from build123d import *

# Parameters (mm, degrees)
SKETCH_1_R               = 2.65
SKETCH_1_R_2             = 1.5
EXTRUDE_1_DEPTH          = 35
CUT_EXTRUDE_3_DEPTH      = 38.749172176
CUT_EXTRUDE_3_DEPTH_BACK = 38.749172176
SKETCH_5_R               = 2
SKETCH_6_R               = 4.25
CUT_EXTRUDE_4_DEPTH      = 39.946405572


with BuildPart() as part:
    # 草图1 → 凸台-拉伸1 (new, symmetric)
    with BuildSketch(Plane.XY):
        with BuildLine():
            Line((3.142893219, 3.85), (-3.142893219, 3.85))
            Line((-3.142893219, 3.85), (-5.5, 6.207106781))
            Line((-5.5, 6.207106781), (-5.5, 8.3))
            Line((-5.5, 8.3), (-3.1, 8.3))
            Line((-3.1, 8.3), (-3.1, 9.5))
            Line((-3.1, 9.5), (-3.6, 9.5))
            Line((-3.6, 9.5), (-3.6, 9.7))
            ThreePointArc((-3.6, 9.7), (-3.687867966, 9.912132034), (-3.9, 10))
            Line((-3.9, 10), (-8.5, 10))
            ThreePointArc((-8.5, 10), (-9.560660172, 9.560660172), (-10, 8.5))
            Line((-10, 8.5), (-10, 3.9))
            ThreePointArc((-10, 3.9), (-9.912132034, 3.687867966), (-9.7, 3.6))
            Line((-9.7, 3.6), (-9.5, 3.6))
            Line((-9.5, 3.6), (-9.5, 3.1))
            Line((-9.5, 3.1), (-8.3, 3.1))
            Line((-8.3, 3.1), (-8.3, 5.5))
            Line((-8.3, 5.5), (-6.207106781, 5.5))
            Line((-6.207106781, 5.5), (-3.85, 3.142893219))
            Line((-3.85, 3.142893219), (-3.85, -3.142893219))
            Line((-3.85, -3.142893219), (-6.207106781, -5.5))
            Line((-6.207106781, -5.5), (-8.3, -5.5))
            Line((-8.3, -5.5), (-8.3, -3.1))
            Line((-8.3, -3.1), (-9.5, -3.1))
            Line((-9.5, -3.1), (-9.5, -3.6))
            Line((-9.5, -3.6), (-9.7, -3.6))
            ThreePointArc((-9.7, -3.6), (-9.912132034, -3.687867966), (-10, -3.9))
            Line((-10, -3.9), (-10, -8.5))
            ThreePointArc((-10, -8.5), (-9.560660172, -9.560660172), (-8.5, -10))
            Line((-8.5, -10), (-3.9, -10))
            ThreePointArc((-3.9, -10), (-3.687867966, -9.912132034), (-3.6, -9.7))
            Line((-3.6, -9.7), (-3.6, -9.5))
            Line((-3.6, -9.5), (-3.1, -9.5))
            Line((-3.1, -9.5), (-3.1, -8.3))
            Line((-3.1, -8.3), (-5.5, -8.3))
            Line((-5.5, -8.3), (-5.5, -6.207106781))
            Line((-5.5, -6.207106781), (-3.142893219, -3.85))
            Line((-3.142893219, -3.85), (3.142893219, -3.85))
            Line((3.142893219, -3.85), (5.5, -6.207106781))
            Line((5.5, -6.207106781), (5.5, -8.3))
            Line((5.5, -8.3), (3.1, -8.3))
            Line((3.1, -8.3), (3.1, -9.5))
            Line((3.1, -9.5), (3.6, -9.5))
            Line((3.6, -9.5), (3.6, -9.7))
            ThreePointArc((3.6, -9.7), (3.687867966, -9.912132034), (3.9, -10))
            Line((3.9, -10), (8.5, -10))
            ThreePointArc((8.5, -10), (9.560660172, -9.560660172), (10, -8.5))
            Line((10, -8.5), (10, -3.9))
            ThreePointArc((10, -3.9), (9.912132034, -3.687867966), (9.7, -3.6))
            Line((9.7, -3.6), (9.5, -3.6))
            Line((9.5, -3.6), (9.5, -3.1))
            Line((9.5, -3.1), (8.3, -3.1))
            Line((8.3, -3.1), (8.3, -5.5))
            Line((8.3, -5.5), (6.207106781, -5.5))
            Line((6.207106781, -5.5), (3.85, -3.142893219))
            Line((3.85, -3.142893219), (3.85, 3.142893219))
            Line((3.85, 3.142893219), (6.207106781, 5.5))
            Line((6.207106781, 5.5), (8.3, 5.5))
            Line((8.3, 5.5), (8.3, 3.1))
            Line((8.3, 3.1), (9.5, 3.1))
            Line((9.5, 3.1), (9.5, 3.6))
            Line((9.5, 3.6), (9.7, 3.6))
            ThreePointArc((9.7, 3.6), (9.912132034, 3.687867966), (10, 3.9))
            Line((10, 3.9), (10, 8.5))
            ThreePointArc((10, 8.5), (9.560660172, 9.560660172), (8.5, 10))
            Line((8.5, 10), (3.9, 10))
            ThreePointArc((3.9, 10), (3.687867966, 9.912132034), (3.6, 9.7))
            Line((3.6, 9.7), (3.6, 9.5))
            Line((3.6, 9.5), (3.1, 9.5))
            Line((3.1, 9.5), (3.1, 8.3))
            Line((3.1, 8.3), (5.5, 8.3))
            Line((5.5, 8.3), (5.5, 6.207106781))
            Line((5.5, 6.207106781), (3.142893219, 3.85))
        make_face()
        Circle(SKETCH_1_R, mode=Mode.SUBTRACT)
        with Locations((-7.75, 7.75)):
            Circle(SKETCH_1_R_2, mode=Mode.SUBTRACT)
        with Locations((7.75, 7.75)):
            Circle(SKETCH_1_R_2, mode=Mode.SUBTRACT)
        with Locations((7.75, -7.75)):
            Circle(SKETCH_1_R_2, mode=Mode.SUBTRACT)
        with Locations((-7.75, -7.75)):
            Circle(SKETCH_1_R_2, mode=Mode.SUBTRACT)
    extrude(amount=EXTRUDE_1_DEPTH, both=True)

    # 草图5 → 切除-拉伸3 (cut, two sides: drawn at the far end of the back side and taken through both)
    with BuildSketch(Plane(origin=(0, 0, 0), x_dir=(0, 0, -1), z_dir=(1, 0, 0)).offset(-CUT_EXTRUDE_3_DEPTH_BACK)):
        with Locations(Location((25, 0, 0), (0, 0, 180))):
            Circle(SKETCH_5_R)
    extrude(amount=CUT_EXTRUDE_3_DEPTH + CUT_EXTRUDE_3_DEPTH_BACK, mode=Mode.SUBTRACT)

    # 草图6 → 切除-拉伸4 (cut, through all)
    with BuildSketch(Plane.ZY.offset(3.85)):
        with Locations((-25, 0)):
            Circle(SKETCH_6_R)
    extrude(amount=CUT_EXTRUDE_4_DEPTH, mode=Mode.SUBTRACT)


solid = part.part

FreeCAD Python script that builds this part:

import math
import FreeCAD as App
import Part
import Sketcher

doc = App.newDocument("Part")
body = doc.addObject("PartDesign::Body", "Body")

sketch1 = body.newObject("Sketcher::SketchObject", "Sketch")
sketch1.AttachmentSupport = (doc.getObject("XY_Plane"), [""])
sketch1.MapMode = "FlatFace"
sketch1.addGeometry([
    Part.LineSegment(App.Vector(3.142893, 3.85, 0), App.Vector(-3.142893, 3.85, 0)),
    Part.LineSegment(App.Vector(-3.142893, 3.85, 0), App.Vector(-5.5, 6.207107, 0)),
    Part.LineSegment(App.Vector(-5.5, 6.207107, 0), App.Vector(-5.5, 8.3, 0)),
    Part.LineSegment(App.Vector(-5.5, 8.3, 0), App.Vector(-3.1, 8.3, 0)),
    Part.LineSegment(App.Vector(-3.1, 8.3, 0), App.Vector(-3.1, 9.5, 0)),
    Part.LineSegment(App.Vector(-3.1, 9.5, 0), App.Vector(-3.6, 9.5, 0)),
    Part.LineSegment(App.Vector(-3.6, 9.5, 0), App.Vector(-3.6, 9.7, 0)),
    Part.ArcOfCircle(Part.Circle(App.Vector(-3.9, 9.7, 0), App.Vector(0, 0, 1), 0.3), math.radians(0), math.radians(90)),
    Part.LineSegment(App.Vector(-3.9, 10, 0), App.Vector(-8.5, 10, 0)),
    Part.ArcOfCircle(Part.Circle(App.Vector(-8.5, 8.5, 0), App.Vector(0, 0, 1), 1.5), math.radians(90), math.radians(180)),
    Part.LineSegment(App.Vector(-10, 8.5, 0), App.Vector(-10, 3.9, 0)),
    Part.ArcOfCircle(Part.Circle(App.Vector(-9.7, 3.9, 0), App.Vector(0, 0, 1), 0.3), math.radians(-180), math.radians(-90)),
    Part.LineSegment(App.Vector(-9.7, 3.6, 0), App.Vector(-9.5, 3.6, 0)),
    Part.LineSegment(App.Vector(-9.5, 3.6, 0), App.Vector(-9.5, 3.1, 0)),
    Part.LineSegment(App.Vector(-9.5, 3.1, 0), App.Vector(-8.3, 3.1, 0)),
    Part.LineSegment(App.Vector(-8.3, 3.1, 0), App.Vector(-8.3, 5.5, 0)),
    Part.LineSegment(App.Vector(-8.3, 5.5, 0), App.Vector(-6.207107, 5.5, 0)),
    Part.LineSegment(App.Vector(-6.207107, 5.5, 0), App.Vector(-3.85, 3.142893, 0)),
    Part.LineSegment(App.Vector(-3.85, 3.142893, 0), App.Vector(-3.85, -3.142893, 0)),
    Part.LineSegment(App.Vector(-3.85, -3.142893, 0), App.Vector(-6.207107, -5.5, 0)),
    Part.LineSegment(App.Vector(-6.207107, -5.5, 0), App.Vector(-8.3, -5.5, 0)),
    Part.LineSegment(App.Vector(-8.3, -5.5, 0), App.Vector(-8.3, -3.1, 0)),
    Part.LineSegment(App.Vector(-8.3, -3.1, 0), App.Vector(-9.5, -3.1, 0)),
    Part.LineSegment(App.Vector(-9.5, -3.1, 0), App.Vector(-9.5, -3.6, 0)),
    Part.LineSegment(App.Vector(-9.5, -3.6, 0), App.Vector(-9.7, -3.6, 0)),
    Part.ArcOfCircle(Part.Circle(App.Vector(-9.7, -3.9, 0), App.Vector(0, 0, 1), 0.3), math.radians(90), math.radians(180)),
    Part.LineSegment(App.Vector(-10, -3.9, 0), App.Vector(-10, -8.5, 0)),
    Part.ArcOfCircle(Part.Circle(App.Vector(-8.5, -8.5, 0), App.Vector(0, 0, 1), 1.5), math.radians(180), math.radians(270)),
    Part.LineSegment(App.Vector(-8.5, -10, 0), App.Vector(-3.9, -10, 0)),
    Part.ArcOfCircle(Part.Circle(App.Vector(-3.9, -9.7, 0), App.Vector(0, 0, 1), 0.3), math.radians(-90), math.radians(0)),
    Part.LineSegment(App.Vector(-3.6, -9.7, 0), App.Vector(-3.6, -9.5, 0)),
    Part.LineSegment(App.Vector(-3.6, -9.5, 0), App.Vector(-3.1, -9.5, 0)),
    Part.LineSegment(App.Vector(-3.1, -9.5, 0), App.Vector(-3.1, -8.3, 0)),
    Part.LineSegment(App.Vector(-3.1, -8.3, 0), App.Vector(-5.5, -8.3, 0)),
    Part.LineSegment(App.Vector(-5.5, -8.3, 0), App.Vector(-5.5, -6.207107, 0)),
    Part.LineSegment(App.Vector(-5.5, -6.207107, 0), App.Vector(-3.142893, -3.85, 0)),
    Part.LineSegment(App.Vector(-3.142893, -3.85, 0), App.Vector(3.142893, -3.85, 0)),
    Part.LineSegment(App.Vector(3.142893, -3.85, 0), App.Vector(5.5, -6.207107, 0)),
    Part.LineSegment(App.Vector(5.5, -6.207107, 0), App.Vector(5.5, -8.3, 0)),
    Part.LineSegment(App.Vector(5.5, -8.3, 0), App.Vector(3.1, -8.3, 0)),
    Part.LineSegment(App.Vector(3.1, -8.3, 0), App.Vector(3.1, -9.5, 0)),
    Part.LineSegment(App.Vector(3.1, -9.5, 0), App.Vector(3.6, -9.5, 0)),
    Part.LineSegment(App.Vector(3.6, -9.5, 0), App.Vector(3.6, -9.7, 0)),
    Part.ArcOfCircle(Part.Circle(App.Vector(3.9, -9.7, 0), App.Vector(0, 0, 1), 0.3), math.radians(-180), math.radians(-90)),
    Part.LineSegment(App.Vector(3.9, -10, 0), App.Vector(8.5, -10, 0)),
    Part.ArcOfCircle(Part.Circle(App.Vector(8.5, -8.5, 0), App.Vector(0, 0, 1), 1.5), math.radians(-90), math.radians(0)),
    Part.LineSegment(App.Vector(10, -8.5, 0), App.Vector(10, -3.9, 0)),
    Part.ArcOfCircle(Part.Circle(App.Vector(9.7, -3.9, 0), App.Vector(0, 0, 1), 0.3), math.radians(0), math.radians(90)),
    Part.LineSegment(App.Vector(9.7, -3.6, 0), App.Vector(9.5, -3.6, 0)),
    Part.LineSegment(App.Vector(9.5, -3.6, 0), App.Vector(9.5, -3.1, 0)),
    Part.LineSegment(App.Vector(9.5, -3.1, 0), App.Vector(8.3, -3.1, 0)),
    Part.LineSegment(App.Vector(8.3, -3.1, 0), App.Vector(8.3, -5.5, 0)),
    Part.LineSegment(App.Vector(8.3, -5.5, 0), App.Vector(6.207107, -5.5, 0)),
    Part.LineSegment(App.Vector(6.207107, -5.5, 0), App.Vector(3.85, -3.142893, 0)),
    Part.LineSegment(App.Vector(3.85, -3.142893, 0), App.Vector(3.85, 3.142893, 0)),
    Part.LineSegment(App.Vector(3.85, 3.142893, 0), App.Vector(6.207107, 5.5, 0)),
    Part.LineSegment(App.Vector(6.207107, 5.5, 0), App.Vector(8.3, 5.5, 0)),
    Part.LineSegment(App.Vector(8.3, 5.5, 0), App.Vector(8.3, 3.1, 0)),
    Part.LineSegment(App.Vector(8.3, 3.1, 0), App.Vector(9.5, 3.1, 0)),
    Part.LineSegment(App.Vector(9.5, 3.1, 0), App.Vector(9.5, 3.6, 0)),
    Part.LineSegment(App.Vector(9.5, 3.6, 0), App.Vector(9.7, 3.6, 0)),
    Part.ArcOfCircle(Part.Circle(App.Vector(9.7, 3.9, 0), App.Vector(0, 0, 1), 0.3), math.radians(-90), math.radians(0)),
    Part.LineSegment(App.Vector(10, 3.9, 0), App.Vector(10, 8.5, 0)),
    Part.ArcOfCircle(Part.Circle(App.Vector(8.5, 8.5, 0), App.Vector(0, 0, 1), 1.5), math.radians(0), math.radians(90)),
    Part.LineSegment(App.Vector(8.5, 10, 0), App.Vector(3.9, 10, 0)),
    Part.ArcOfCircle(Part.Circle(App.Vector(3.9, 9.7, 0), App.Vector(0, 0, 1), 0.3), math.radians(90), math.radians(180)),
    Part.LineSegment(App.Vector(3.6, 9.7, 0), App.Vector(3.6, 9.5, 0)),
    Part.LineSegment(App.Vector(3.6, 9.5, 0), App.Vector(3.1, 9.5, 0)),
    Part.LineSegment(App.Vector(3.1, 9.5, 0), App.Vector(3.1, 8.3, 0)),
    Part.LineSegment(App.Vector(3.1, 8.3, 0), App.Vector(5.5, 8.3, 0)),
    Part.LineSegment(App.Vector(5.5, 8.3, 0), App.Vector(5.5, 6.207107, 0)),
    Part.LineSegment(App.Vector(5.5, 6.207107, 0), App.Vector(3.142893, 3.85, 0)),
    Part.Circle(App.Vector(-7.75, -7.75, 0), App.Vector(0, 0, 1), 1.5),
    Part.Circle(App.Vector(7.75, -7.75, 0), App.Vector(0, 0, 1), 1.5),
    Part.Circle(App.Vector(-7.75, 7.75, 0), App.Vector(0, 0, 1), 1.5),
    Part.Circle(App.Vector(0, 0, 0), App.Vector(0, 0, 1), 2.65),
    Part.Circle(App.Vector(7.75, 7.75, 0), App.Vector(0, 0, 1), 1.5),
], False)
sketch1.addConstraint([
    Sketcher.Constraint("Coincident", 0, 2, 1, 1),
    Sketcher.Constraint("Coincident", 1, 2, 2, 1),
    Sketcher.Constraint("Coincident", 2, 2, 3, 1),
    Sketcher.Constraint("Coincident", 3, 2, 4, 1),
    Sketcher.Constraint("Coincident", 4, 2, 5, 1),
    Sketcher.Constraint("Coincident", 5, 2, 6, 1),
    Sketcher.Constraint("Tangent", 6, 2, 7, 1),
    Sketcher.Constraint("Tangent", 7, 2, 8, 1),
    Sketcher.Constraint("Tangent", 8, 2, 9, 1),
    Sketcher.Constraint("Tangent", 9, 2, 10, 1),
    Sketcher.Constraint("Tangent", 10, 2, 11, 1),
    Sketcher.Constraint("Tangent", 11, 2, 12, 1),
    Sketcher.Constraint("Coincident", 12, 2, 13, 1),
    Sketcher.Constraint("Coincident", 13, 2, 14, 1),
    Sketcher.Constraint("Coincident", 14, 2, 15, 1),
    Sketcher.Constraint("Coincident", 15, 2, 16, 1),
    Sketcher.Constraint("Coincident", 16, 2, 17, 1),
    Sketcher.Constraint("Coincident", 17, 2, 18, 1),
    Sketcher.Constraint("Coincident", 18, 2, 19, 1),
    Sketcher.Constraint("Coincident", 19, 2, 20, 1),
    Sketcher.Constraint("Coincident", 20, 2, 21, 1),
    Sketcher.Constraint("Coincident", 21, 2, 22, 1),
    Sketcher.Constraint("Coincident", 22, 2, 23, 1),
    Sketcher.Constraint("Coincident", 23, 2, 24, 1),
    Sketcher.Constraint("Tangent", 24, 2, 25, 1),
    Sketcher.Constraint("Tangent", 25, 2, 26, 1),
    Sketcher.Constraint("Tangent", 26, 2, 27, 1),
    Sketcher.Constraint("Tangent", 27, 2, 28, 1),
    Sketcher.Constraint("Tangent", 28, 2, 29, 1),
    Sketcher.Constraint("Tangent", 29, 2, 30, 1),
    Sketcher.Constraint("Coincident", 30, 2, 31, 1),
    Sketcher.Constraint("Coincident", 31, 2, 32, 1),
    Sketcher.Constraint("Coincident", 32, 2, 33, 1),
    Sketcher.Constraint("Coincident", 33, 2, 34, 1),
    Sketcher.Constraint("Coincident", 34, 2, 35, 1),
    Sketcher.Constraint("Coincident", 35, 2, 36, 1),
    Sketcher.Constraint("Coincident", 36, 2, 37, 1),
    Sketcher.Constraint("Coincident", 37, 2, 38, 1),
    Sketcher.Constraint("Coincident", 38, 2, 39, 1),
    Sketcher.Constraint("Coincident", 39, 2, 40, 1),
    Sketcher.Constraint("Coincident", 40, 2, 41, 1),
    Sketcher.Constraint("Coincident", 41, 2, 42, 1),
    Sketcher.Constraint("Tangent", 42, 2, 43, 1),
    Sketcher.Constraint("Tangent", 43, 2, 44, 1),
    Sketcher.Constraint("Tangent", 44, 2, 45, 1),
    Sketcher.Constraint("Tangent", 45, 2, 46, 1),
    Sketcher.Constraint("Tangent", 46, 2, 47, 1),
    Sketcher.Constraint("Tangent", 47, 2, 48, 1),
    Sketcher.Constraint("Coincident", 48, 2, 49, 1),
    Sketcher.Constraint("Coincident", 49, 2, 50, 1),
    Sketcher.Constraint("Coincident", 50, 2, 51, 1),
    Sketcher.Constraint("Coincident", 51, 2, 52, 1),
    Sketcher.Constraint("Coincident", 52, 2, 53, 1),
    Sketcher.Constraint("Coincident", 53, 2, 54, 1),
    Sketcher.Constraint("Coincident", 54, 2, 55, 1),
    Sketcher.Constraint("Coincident", 55, 2, 56, 1),
    Sketcher.Constraint("Coincident", 56, 2, 57, 1),
    Sketcher.Constraint("Coincident", 57, 2, 58, 1),
    Sketcher.Constraint("Coincident", 58, 2, 59, 1),
    Sketcher.Constraint("Coincident", 59, 2, 60, 1),
    Sketcher.Constraint("Tangent", 60, 2, 61, 1),
    Sketcher.Constraint("Tangent", 61, 2, 62, 1),
    Sketcher.Constraint("Tangent", 62, 2, 63, 1),
    Sketcher.Constraint("Tangent", 63, 2, 64, 1),
    Sketcher.Constraint("Tangent", 64, 2, 65, 1),
    Sketcher.Constraint("Tangent", 65, 2, 66, 1),
    Sketcher.Constraint("Coincident", 66, 2, 67, 1),
    Sketcher.Constraint("Coincident", 67, 2, 68, 1),
    Sketcher.Constraint("Coincident", 68, 2, 69, 1),
    Sketcher.Constraint("Coincident", 69, 2, 70, 1),
    Sketcher.Constraint("Coincident", 70, 2, 71, 1),
    Sketcher.Constraint("Coincident", 71, 2, 0, 1),
    Sketcher.Constraint("Horizontal", 0),
    Sketcher.Constraint("Vertical", 2),
    Sketcher.Constraint("Horizontal", 3),
    Sketcher.Constraint("Vertical", 4),
    Sketcher.Constraint("Horizontal", 5),
    Sketcher.Constraint("Vertical", 6),
    Sketcher.Constraint("Horizontal", 8),
    Sketcher.Constraint("Vertical", 10),
    Sketcher.Constraint("Horizontal", 12),
    Sketcher.Constraint("Vertical", 13),
    Sketcher.Constraint("Horizontal", 14),
    Sketcher.Constraint("Vertical", 15),
    Sketcher.Constraint("Horizontal", 16),
    Sketcher.Constraint("Vertical", 18),
    Sketcher.Constraint("Horizontal", 20),
    Sketcher.Constraint("Vertical", 21),
    Sketcher.Constraint("Horizontal", 22),
    Sketcher.Constraint("Vertical", 23),
    Sketcher.Constraint("Horizontal", 24),
    Sketcher.Constraint("Vertical", 26),
    Sketcher.Constraint("Horizontal", 28),
    Sketcher.Constraint("Vertical", 30),
    Sketcher.Constraint("Horizontal", 31),
    Sketcher.Constraint("Vertical", 32),
    Sketcher.Constraint("Horizontal", 33),
    Sketcher.Constraint("Vertical", 34),
    Sketcher.Constraint("Horizontal", 36),
    Sketcher.Constraint("Vertical", 38),
    Sketcher.Constraint("Horizontal", 39),
    Sketcher.Constraint("Vertical", 40),
    Sketcher.Constraint("Horizontal", 41),
    Sketcher.Constraint("Vertical", 42),
    Sketcher.Constraint("Horizontal", 44),
    Sketcher.Constraint("Vertical", 46),
    Sketcher.Constraint("Horizontal", 48),
    Sketcher.Constraint("Vertical", 49),
    Sketcher.Constraint("Horizontal", 50),
    Sketcher.Constraint("Vertical", 51),
    Sketcher.Constraint("Horizontal", 52),
    Sketcher.Constraint("Vertical", 54),
    Sketcher.Constraint("Horizontal", 56),
    Sketcher.Constraint("Vertical", 57),
    Sketcher.Constraint("Horizontal", 58),
    Sketcher.Constraint("Vertical", 59),
    Sketcher.Constraint("Horizontal", 60),
    Sketcher.Constraint("Vertical", 62),
    Sketcher.Constraint("Horizontal", 64),
    Sketcher.Constraint("Vertical", 66),
    Sketcher.Constraint("Horizontal", 67),
    Sketcher.Constraint("Vertical", 68),
    Sketcher.Constraint("Horizontal", 69),
    Sketcher.Constraint("Vertical", 70),
    Sketcher.Constraint("Coincident", 75, 3, -1, 1),
    Sketcher.Constraint("Equal", 7, 11),
    Sketcher.Constraint("Equal", 11, 25),
    Sketcher.Constraint("Equal", 9, 27),
    Sketcher.Constraint("Equal", 25, 29),
    Sketcher.Constraint("Equal", 29, 43),
    Sketcher.Constraint("Equal", 27, 45),
    Sketcher.Constraint("Equal", 43, 47),
    Sketcher.Constraint("Equal", 47, 61),
    Sketcher.Constraint("Equal", 45, 63),
    Sketcher.Constraint("Equal", 61, 65),
    Sketcher.Constraint("Equal", 63, 72),
    Sketcher.Constraint("Equal", 72, 73),
    Sketcher.Constraint("Equal", 73, 74),
    Sketcher.Constraint("Equal", 74, 76),
    Sketcher.Constraint("Symmetric", 7, 3, 43, 3, -1, 1),
    Sketcher.Constraint("Symmetric", 11, 3, 47, 3, -1, 1),
    Sketcher.Constraint("Symmetric", 25, 3, 61, 3, -1, 1),
    Sketcher.Constraint("Symmetric", 29, 3, 65, 3, -1, 1),
    Sketcher.Constraint("Symmetric", 73, 3, 74, 3, -1, 1),
    Sketcher.Constraint("Symmetric", 72, 3, 76, 3, -1, 1),
    Sketcher.Constraint("Symmetric", 0, 2, 36, 2, -1, 1),
    Sketcher.Constraint("Symmetric", 1, 2, 37, 2, -1, 1),
    Sketcher.Constraint("Symmetric", 3, 2, 39, 2, -1, 1),
    Sketcher.Constraint("Symmetric", 13, 2, 49, 2, -1, 1),
    Sketcher.Constraint("Symmetric", 15, 2, 51, 2, -1, 1),
    Sketcher.Constraint("Symmetric", 17, 2, 53, 2, -1, 1),
    Sketcher.Constraint("Symmetric", 19, 2, 55, 2, -1, 1),
    Sketcher.Constraint("Symmetric", 21, 2, 57, 2, -1, 1),
    Sketcher.Constraint("Symmetric", 31, 2, 67, 2, -1, 1),
    Sketcher.Constraint("Symmetric", 33, 2, 69, 2, -1, 1),
    Sketcher.Constraint("Symmetric", 29, 3, 43, 3, -2),
    Sketcher.Constraint("Symmetric", 25, 3, 47, 3, -2),
    Sketcher.Constraint("Symmetric", 72, 3, 73, 3, -2),
    Sketcher.Constraint("Symmetric", 34, 2, 37, 2, -2),
    Sketcher.Constraint("Symmetric", 32, 2, 39, 2, -2),
    Sketcher.Constraint("Symmetric", 22, 2, 49, 2, -2),
    Sketcher.Constraint("Symmetric", 20, 2, 51, 2, -2),
    Sketcher.Constraint("Parallel", 1, 17),
    Sketcher.Constraint("Perpendicular", 17, 19),
    Sketcher.Constraint("Parallel", 19, 35),
    Sketcher.Constraint("Parallel", 37, 53),
    Sketcher.Constraint("Perpendicular", 53, 55),
    Sketcher.Constraint("Parallel", 55, 71),
    Sketcher.Constraint("Horizontal", 31, 2, 40, 2),
    Sketcher.Constraint("Horizontal", 18, 2, 53, 2),
    Sketcher.Constraint("Horizontal", 5, 2, 66, 2),
    Sketcher.Constraint("Horizontal", 1, 2, 70, 2),
    Sketcher.Constraint("Vertical", 16, 2, 19, 2),
    Sketcher.Constraint("Vertical", 49, 2, 58, 2),
    Sketcher.Constraint("Equal", 56, 2),
    Sketcher.Constraint("Equal", 58, 4),
    Sketcher.Constraint("Equal", 60, 6),
    Sketcher.Constraint("Equal", 64, 10),
    Sketcher.Constraint("Equal", 67, 13),
    Sketcher.Constraint("Equal", 69, 15),
    Sketcher.Constraint("Equal", 36, 18),
    Sketcher.Constraint("Equal", 1, 17),
    Sketcher.Constraint("Diameter", 72, 3.0),
    Sketcher.Constraint("Diameter", 75, 5.3),
    Sketcher.Constraint("Radius", 7, 0.3),
    Sketcher.Constraint("DistanceX", 3, 1, 3, 2, 2.4),
    Sketcher.Constraint("DistanceX", 5, 2, 5, 1, 0.5),
    Sketcher.Constraint("DistanceX", 8, 2, 8, 1, 4.6),
    Sketcher.Constraint("DistanceX", 12, 1, 12, 2, 0.2),
    Sketcher.Constraint("DistanceX", 14, 1, 14, 2, 1.2),
    Sketcher.Constraint("DistanceY", -1, 1, 7, 2, 10.0),
    Sketcher.Constraint("DistanceX", 72, 3, -1, 1, 7.75),
    Sketcher.Constraint("DistanceY", 72, 3, -1, 1, 7.75),
    Sketcher.Constraint("DistanceY", -1, 1, 0, 2, 3.85),
    Sketcher.Constraint("DistanceX", 0, 2, 0, 1, 6.285786),
])
pad1 = body.newObject("PartDesign::Pad", "Pad")
pad1.Profile = sketch1
pad1.Length = 70
pad1.Midplane = True

sketch2 = body.newObject("Sketcher::SketchObject", "Sketch001")
sketch2.AttachmentSupport = (doc.getObject("YZ_Plane"), [""])
sketch2.MapMode = "FlatFace"
sketch2.addGeometry(Part.Circle(App.Vector(0, -25, 0), App.Vector(0, 0, 1), 2), False)
sketch2.addConstraint([
    Sketcher.Constraint("PointOnObject", 0, 3, -2),
    Sketcher.Constraint("Diameter", 0, 4.0),
    Sketcher.Constraint("DistanceY", 0, 3, -1, 1, 25.0),
])
pocket1 = body.newObject("PartDesign::Pocket", "Pocket")
pocket1.Profile = sketch2
pocket1.Type = "ThroughAll"
pocket1.Midplane = True

sketch3 = body.newObject("Sketcher::SketchObject", "Sketch002")
sketch3.AttachmentSupport = (doc.getObject("YZ_Plane"), [""])
sketch3.MapMode = "FlatFace"
sketch3.AttachmentOffset = App.Placement(App.Vector(0, 0, -3.85), App.Rotation())
sketch3.addGeometry(Part.Circle(App.Vector(0, -25, 0), App.Vector(0, 0, 1), 4.25), False)
sketch3.addConstraint([
    Sketcher.Constraint("PointOnObject", 0, 3, -2),
    Sketcher.Constraint("Diameter", 0, 8.5),
    Sketcher.Constraint("DistanceY", 0, 3, -1, 1, 25.0),
])
pocket2 = body.newObject("PartDesign::Pocket", "Pocket001")
pocket2.Profile = sketch3
pocket2.Type = "ThroughAll"

doc.recompute()
